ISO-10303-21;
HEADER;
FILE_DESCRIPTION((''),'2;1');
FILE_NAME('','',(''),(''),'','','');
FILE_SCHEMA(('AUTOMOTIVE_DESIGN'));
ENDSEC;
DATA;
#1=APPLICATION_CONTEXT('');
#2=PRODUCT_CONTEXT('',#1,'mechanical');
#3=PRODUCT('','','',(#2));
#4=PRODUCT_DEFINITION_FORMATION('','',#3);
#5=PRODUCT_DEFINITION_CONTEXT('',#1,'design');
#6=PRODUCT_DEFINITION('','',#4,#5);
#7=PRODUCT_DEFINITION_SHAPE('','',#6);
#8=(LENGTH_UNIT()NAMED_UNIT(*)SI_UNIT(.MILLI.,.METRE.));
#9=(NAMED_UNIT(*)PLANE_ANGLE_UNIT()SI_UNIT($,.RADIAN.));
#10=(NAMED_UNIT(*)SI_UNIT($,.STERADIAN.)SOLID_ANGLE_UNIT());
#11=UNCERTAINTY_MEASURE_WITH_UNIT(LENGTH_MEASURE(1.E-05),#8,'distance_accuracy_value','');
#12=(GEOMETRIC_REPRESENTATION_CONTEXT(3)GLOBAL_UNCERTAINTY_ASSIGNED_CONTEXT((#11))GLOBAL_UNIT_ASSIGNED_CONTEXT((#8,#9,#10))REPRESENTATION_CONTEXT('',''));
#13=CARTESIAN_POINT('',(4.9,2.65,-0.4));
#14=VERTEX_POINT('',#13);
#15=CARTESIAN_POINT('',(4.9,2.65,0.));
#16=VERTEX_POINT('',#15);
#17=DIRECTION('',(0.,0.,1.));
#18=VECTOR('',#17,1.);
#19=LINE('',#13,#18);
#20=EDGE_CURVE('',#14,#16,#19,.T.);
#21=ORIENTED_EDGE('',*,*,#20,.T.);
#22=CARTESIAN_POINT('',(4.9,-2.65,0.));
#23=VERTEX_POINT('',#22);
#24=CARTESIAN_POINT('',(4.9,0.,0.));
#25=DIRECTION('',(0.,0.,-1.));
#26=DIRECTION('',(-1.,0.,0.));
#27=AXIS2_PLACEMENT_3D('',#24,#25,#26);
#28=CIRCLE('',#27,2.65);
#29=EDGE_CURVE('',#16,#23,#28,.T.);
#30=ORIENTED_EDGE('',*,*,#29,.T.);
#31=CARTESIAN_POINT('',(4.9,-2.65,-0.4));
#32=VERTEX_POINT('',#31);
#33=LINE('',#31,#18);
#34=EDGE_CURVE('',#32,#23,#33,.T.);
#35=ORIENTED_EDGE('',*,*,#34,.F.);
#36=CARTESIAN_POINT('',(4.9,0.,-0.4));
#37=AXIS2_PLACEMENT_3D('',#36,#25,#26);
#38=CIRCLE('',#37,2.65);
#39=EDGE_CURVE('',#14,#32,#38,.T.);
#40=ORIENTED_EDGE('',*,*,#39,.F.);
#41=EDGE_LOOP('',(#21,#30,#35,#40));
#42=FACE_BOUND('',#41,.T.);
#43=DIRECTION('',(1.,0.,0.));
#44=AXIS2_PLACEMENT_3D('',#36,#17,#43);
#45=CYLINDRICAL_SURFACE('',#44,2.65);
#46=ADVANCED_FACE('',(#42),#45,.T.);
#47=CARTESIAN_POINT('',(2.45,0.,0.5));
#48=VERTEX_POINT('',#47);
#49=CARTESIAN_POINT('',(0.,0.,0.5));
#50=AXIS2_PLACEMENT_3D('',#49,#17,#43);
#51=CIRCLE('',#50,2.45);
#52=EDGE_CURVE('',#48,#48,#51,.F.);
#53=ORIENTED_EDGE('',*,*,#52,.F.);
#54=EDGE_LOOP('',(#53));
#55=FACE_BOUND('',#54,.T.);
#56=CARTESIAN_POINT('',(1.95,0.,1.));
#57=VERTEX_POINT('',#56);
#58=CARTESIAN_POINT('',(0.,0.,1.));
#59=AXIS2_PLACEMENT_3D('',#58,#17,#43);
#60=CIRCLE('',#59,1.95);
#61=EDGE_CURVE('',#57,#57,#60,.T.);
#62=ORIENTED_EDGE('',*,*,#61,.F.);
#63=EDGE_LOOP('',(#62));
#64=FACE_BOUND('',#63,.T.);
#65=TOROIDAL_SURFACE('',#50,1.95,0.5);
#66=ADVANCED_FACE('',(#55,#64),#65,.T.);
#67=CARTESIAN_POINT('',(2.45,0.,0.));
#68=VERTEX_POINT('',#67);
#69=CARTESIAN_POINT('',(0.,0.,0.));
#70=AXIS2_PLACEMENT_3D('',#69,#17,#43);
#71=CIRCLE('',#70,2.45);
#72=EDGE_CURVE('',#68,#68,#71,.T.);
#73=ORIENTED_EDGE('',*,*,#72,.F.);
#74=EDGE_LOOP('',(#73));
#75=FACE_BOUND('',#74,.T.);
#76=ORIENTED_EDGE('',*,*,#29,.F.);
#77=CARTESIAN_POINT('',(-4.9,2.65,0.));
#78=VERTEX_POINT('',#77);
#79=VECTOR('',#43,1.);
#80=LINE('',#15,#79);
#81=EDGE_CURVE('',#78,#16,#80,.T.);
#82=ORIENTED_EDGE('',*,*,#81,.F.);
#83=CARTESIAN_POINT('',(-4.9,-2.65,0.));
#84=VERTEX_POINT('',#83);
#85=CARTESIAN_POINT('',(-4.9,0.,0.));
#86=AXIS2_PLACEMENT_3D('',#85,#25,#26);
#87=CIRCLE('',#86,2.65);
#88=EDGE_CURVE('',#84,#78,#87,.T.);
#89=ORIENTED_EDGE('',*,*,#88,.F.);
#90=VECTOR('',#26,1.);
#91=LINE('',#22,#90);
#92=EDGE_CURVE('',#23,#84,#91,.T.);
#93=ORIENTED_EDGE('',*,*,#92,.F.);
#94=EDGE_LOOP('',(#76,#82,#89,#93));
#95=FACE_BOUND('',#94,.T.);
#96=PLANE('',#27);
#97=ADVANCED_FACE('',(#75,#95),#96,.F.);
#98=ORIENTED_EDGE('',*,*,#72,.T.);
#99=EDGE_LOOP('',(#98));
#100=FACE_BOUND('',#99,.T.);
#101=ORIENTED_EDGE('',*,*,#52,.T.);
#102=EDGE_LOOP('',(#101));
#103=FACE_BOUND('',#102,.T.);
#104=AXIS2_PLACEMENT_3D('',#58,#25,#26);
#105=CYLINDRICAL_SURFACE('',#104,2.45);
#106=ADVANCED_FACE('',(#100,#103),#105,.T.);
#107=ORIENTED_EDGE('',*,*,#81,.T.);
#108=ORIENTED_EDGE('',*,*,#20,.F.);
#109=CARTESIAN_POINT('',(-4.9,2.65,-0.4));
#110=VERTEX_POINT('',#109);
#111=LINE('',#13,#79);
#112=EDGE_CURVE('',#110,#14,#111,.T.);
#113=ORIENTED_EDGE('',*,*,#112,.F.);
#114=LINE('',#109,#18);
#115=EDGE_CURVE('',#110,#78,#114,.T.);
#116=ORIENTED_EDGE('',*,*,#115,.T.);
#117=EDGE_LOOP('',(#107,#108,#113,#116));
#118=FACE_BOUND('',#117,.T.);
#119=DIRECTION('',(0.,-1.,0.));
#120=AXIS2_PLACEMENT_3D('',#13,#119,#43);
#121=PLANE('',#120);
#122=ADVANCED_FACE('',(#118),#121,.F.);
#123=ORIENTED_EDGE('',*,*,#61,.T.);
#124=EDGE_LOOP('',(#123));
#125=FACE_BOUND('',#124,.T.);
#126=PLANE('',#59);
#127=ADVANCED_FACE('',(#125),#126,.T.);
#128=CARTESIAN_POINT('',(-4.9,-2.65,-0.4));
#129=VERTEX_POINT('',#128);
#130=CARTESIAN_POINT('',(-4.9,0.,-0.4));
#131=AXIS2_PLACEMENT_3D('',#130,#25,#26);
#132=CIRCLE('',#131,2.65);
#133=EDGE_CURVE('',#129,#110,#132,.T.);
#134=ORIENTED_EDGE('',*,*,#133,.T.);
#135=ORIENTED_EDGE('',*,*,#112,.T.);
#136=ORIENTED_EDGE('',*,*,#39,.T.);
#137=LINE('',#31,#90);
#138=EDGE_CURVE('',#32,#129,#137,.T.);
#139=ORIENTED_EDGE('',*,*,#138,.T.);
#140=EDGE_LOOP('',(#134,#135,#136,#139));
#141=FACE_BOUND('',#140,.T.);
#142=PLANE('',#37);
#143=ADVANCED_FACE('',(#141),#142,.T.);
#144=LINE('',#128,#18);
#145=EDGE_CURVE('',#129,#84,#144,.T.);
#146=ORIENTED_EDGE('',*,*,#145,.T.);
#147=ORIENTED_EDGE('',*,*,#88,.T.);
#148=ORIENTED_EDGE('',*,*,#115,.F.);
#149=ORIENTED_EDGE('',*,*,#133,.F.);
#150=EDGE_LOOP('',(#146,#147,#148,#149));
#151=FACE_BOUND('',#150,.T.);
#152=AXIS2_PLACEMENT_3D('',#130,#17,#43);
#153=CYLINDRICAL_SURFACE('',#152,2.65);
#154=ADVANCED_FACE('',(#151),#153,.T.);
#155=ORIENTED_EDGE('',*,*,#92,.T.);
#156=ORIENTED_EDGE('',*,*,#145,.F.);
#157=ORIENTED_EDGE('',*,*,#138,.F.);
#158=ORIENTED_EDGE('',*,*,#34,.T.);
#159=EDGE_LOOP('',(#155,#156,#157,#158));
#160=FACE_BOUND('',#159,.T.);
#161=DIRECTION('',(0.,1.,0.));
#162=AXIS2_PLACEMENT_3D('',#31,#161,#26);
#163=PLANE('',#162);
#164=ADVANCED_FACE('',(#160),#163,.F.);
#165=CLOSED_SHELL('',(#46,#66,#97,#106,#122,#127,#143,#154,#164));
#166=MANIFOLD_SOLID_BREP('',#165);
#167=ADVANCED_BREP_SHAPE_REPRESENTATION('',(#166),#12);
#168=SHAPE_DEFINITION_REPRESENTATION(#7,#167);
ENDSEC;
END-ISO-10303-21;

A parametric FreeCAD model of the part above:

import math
import FreeCAD as App
import Part
import Sketcher
from FreeCAD import Vector
Q = App.Units.Quantity


def edges_at(feature, points):
    """Names of the edges that pass closest to the given points."""
    edges = feature.Shape.Edges
    near = lambda p: min(range(len(edges)), key=lambda i: edges[i].distToShape(Part.Vertex(*p))[0])
    return sorted({f"Edge{near(p) + 1}" for p in points})

doc = App.newDocument("Part")
body = doc.addObject("PartDesign::Body", "Body")

# Sketch on XY plane
sketch1 = body.newObject("Sketcher::SketchObject", "Sketch")
sketch1.AttachmentSupport = (doc.getObject("XY_Plane"), [""])
sketch1.MapMode = "FlatFace"
sketch1.addGeometry(Part.Circle(Vector(0, 0, 0), Vector(0, 0, 1), 2.5), False)
sketch1.addConstraint([
    Sketcher.Constraint("Coincident", 0, 3, -1, 1),
    Sketcher.Constraint("Diameter", 0, Q("4.9 mm")),
])
pad1 = body.newObject("PartDesign::Pad", "Pad")
pad1.Profile = sketch1
pad1.Length = 1

# Sketch on XY plane
sketch2 = body.newObject("Sketcher::SketchObject", "Sketch001")
sketch2.AttachmentSupport = (doc.getObject("XY_Plane"), [""])
sketch2.MapMode = "FlatFace"
sketch2.addGeometry([
    Part.LineSegment(Vector(-4.9, 2.6, 0), Vector(4.9, 2.6, 0)),
    Part.ArcOfCircle(Part.Circle(Vector(4.9, 0, 0), Vector(0, 0, 1), 2.6), math.radians(-90), math.radians(90)),
    Part.LineSegment(Vector(4.9, -2.6, 0), Vector(-4.9, -2.6, 0)),
    Part.ArcOfCircle(Part.Circle(Vector(-4.9, 0, 0), Vector(0, 0, 1), 2.6), math.radians(90), math.radians(270)),
], False)
sketch2.addConstraint([
    Sketcher.Constraint("Tangent", 0, 2, 1, 2),
    Sketcher.Constraint("Tangent", 1, 1, 2, 1),
    Sketcher.Constraint("Tangent", 2, 2, 3, 2),
    Sketcher.Constraint("Tangent", 3, 1, 0, 1),
    Sketcher.Constraint("Horizontal", 0),
    Sketcher.Constraint("Horizontal", 2),
    Sketcher.Constraint("Symmetric", 1, 3, 3, 3, -1, 1),
    Sketcher.Constraint("Radius", 1, Q("2.65 mm")),
    Sketcher.Constraint("DistanceX", 0, 1, 0, 2, Q("9.8 mm")),
])
pad2 = body.newObject("PartDesign::Pad", "Pad001")
pad2.Profile = sketch2
pad2.Length = 0.4
pad2.Reversed = True
doc.recompute()

fillet = body.newObject("PartDesign::Fillet", "Fillet")
fillet.Base = (pad2, edges_at(pad2, [(-2.45, 0, 1)]))
fillet.Radius = 0.5

doc.recompute()
